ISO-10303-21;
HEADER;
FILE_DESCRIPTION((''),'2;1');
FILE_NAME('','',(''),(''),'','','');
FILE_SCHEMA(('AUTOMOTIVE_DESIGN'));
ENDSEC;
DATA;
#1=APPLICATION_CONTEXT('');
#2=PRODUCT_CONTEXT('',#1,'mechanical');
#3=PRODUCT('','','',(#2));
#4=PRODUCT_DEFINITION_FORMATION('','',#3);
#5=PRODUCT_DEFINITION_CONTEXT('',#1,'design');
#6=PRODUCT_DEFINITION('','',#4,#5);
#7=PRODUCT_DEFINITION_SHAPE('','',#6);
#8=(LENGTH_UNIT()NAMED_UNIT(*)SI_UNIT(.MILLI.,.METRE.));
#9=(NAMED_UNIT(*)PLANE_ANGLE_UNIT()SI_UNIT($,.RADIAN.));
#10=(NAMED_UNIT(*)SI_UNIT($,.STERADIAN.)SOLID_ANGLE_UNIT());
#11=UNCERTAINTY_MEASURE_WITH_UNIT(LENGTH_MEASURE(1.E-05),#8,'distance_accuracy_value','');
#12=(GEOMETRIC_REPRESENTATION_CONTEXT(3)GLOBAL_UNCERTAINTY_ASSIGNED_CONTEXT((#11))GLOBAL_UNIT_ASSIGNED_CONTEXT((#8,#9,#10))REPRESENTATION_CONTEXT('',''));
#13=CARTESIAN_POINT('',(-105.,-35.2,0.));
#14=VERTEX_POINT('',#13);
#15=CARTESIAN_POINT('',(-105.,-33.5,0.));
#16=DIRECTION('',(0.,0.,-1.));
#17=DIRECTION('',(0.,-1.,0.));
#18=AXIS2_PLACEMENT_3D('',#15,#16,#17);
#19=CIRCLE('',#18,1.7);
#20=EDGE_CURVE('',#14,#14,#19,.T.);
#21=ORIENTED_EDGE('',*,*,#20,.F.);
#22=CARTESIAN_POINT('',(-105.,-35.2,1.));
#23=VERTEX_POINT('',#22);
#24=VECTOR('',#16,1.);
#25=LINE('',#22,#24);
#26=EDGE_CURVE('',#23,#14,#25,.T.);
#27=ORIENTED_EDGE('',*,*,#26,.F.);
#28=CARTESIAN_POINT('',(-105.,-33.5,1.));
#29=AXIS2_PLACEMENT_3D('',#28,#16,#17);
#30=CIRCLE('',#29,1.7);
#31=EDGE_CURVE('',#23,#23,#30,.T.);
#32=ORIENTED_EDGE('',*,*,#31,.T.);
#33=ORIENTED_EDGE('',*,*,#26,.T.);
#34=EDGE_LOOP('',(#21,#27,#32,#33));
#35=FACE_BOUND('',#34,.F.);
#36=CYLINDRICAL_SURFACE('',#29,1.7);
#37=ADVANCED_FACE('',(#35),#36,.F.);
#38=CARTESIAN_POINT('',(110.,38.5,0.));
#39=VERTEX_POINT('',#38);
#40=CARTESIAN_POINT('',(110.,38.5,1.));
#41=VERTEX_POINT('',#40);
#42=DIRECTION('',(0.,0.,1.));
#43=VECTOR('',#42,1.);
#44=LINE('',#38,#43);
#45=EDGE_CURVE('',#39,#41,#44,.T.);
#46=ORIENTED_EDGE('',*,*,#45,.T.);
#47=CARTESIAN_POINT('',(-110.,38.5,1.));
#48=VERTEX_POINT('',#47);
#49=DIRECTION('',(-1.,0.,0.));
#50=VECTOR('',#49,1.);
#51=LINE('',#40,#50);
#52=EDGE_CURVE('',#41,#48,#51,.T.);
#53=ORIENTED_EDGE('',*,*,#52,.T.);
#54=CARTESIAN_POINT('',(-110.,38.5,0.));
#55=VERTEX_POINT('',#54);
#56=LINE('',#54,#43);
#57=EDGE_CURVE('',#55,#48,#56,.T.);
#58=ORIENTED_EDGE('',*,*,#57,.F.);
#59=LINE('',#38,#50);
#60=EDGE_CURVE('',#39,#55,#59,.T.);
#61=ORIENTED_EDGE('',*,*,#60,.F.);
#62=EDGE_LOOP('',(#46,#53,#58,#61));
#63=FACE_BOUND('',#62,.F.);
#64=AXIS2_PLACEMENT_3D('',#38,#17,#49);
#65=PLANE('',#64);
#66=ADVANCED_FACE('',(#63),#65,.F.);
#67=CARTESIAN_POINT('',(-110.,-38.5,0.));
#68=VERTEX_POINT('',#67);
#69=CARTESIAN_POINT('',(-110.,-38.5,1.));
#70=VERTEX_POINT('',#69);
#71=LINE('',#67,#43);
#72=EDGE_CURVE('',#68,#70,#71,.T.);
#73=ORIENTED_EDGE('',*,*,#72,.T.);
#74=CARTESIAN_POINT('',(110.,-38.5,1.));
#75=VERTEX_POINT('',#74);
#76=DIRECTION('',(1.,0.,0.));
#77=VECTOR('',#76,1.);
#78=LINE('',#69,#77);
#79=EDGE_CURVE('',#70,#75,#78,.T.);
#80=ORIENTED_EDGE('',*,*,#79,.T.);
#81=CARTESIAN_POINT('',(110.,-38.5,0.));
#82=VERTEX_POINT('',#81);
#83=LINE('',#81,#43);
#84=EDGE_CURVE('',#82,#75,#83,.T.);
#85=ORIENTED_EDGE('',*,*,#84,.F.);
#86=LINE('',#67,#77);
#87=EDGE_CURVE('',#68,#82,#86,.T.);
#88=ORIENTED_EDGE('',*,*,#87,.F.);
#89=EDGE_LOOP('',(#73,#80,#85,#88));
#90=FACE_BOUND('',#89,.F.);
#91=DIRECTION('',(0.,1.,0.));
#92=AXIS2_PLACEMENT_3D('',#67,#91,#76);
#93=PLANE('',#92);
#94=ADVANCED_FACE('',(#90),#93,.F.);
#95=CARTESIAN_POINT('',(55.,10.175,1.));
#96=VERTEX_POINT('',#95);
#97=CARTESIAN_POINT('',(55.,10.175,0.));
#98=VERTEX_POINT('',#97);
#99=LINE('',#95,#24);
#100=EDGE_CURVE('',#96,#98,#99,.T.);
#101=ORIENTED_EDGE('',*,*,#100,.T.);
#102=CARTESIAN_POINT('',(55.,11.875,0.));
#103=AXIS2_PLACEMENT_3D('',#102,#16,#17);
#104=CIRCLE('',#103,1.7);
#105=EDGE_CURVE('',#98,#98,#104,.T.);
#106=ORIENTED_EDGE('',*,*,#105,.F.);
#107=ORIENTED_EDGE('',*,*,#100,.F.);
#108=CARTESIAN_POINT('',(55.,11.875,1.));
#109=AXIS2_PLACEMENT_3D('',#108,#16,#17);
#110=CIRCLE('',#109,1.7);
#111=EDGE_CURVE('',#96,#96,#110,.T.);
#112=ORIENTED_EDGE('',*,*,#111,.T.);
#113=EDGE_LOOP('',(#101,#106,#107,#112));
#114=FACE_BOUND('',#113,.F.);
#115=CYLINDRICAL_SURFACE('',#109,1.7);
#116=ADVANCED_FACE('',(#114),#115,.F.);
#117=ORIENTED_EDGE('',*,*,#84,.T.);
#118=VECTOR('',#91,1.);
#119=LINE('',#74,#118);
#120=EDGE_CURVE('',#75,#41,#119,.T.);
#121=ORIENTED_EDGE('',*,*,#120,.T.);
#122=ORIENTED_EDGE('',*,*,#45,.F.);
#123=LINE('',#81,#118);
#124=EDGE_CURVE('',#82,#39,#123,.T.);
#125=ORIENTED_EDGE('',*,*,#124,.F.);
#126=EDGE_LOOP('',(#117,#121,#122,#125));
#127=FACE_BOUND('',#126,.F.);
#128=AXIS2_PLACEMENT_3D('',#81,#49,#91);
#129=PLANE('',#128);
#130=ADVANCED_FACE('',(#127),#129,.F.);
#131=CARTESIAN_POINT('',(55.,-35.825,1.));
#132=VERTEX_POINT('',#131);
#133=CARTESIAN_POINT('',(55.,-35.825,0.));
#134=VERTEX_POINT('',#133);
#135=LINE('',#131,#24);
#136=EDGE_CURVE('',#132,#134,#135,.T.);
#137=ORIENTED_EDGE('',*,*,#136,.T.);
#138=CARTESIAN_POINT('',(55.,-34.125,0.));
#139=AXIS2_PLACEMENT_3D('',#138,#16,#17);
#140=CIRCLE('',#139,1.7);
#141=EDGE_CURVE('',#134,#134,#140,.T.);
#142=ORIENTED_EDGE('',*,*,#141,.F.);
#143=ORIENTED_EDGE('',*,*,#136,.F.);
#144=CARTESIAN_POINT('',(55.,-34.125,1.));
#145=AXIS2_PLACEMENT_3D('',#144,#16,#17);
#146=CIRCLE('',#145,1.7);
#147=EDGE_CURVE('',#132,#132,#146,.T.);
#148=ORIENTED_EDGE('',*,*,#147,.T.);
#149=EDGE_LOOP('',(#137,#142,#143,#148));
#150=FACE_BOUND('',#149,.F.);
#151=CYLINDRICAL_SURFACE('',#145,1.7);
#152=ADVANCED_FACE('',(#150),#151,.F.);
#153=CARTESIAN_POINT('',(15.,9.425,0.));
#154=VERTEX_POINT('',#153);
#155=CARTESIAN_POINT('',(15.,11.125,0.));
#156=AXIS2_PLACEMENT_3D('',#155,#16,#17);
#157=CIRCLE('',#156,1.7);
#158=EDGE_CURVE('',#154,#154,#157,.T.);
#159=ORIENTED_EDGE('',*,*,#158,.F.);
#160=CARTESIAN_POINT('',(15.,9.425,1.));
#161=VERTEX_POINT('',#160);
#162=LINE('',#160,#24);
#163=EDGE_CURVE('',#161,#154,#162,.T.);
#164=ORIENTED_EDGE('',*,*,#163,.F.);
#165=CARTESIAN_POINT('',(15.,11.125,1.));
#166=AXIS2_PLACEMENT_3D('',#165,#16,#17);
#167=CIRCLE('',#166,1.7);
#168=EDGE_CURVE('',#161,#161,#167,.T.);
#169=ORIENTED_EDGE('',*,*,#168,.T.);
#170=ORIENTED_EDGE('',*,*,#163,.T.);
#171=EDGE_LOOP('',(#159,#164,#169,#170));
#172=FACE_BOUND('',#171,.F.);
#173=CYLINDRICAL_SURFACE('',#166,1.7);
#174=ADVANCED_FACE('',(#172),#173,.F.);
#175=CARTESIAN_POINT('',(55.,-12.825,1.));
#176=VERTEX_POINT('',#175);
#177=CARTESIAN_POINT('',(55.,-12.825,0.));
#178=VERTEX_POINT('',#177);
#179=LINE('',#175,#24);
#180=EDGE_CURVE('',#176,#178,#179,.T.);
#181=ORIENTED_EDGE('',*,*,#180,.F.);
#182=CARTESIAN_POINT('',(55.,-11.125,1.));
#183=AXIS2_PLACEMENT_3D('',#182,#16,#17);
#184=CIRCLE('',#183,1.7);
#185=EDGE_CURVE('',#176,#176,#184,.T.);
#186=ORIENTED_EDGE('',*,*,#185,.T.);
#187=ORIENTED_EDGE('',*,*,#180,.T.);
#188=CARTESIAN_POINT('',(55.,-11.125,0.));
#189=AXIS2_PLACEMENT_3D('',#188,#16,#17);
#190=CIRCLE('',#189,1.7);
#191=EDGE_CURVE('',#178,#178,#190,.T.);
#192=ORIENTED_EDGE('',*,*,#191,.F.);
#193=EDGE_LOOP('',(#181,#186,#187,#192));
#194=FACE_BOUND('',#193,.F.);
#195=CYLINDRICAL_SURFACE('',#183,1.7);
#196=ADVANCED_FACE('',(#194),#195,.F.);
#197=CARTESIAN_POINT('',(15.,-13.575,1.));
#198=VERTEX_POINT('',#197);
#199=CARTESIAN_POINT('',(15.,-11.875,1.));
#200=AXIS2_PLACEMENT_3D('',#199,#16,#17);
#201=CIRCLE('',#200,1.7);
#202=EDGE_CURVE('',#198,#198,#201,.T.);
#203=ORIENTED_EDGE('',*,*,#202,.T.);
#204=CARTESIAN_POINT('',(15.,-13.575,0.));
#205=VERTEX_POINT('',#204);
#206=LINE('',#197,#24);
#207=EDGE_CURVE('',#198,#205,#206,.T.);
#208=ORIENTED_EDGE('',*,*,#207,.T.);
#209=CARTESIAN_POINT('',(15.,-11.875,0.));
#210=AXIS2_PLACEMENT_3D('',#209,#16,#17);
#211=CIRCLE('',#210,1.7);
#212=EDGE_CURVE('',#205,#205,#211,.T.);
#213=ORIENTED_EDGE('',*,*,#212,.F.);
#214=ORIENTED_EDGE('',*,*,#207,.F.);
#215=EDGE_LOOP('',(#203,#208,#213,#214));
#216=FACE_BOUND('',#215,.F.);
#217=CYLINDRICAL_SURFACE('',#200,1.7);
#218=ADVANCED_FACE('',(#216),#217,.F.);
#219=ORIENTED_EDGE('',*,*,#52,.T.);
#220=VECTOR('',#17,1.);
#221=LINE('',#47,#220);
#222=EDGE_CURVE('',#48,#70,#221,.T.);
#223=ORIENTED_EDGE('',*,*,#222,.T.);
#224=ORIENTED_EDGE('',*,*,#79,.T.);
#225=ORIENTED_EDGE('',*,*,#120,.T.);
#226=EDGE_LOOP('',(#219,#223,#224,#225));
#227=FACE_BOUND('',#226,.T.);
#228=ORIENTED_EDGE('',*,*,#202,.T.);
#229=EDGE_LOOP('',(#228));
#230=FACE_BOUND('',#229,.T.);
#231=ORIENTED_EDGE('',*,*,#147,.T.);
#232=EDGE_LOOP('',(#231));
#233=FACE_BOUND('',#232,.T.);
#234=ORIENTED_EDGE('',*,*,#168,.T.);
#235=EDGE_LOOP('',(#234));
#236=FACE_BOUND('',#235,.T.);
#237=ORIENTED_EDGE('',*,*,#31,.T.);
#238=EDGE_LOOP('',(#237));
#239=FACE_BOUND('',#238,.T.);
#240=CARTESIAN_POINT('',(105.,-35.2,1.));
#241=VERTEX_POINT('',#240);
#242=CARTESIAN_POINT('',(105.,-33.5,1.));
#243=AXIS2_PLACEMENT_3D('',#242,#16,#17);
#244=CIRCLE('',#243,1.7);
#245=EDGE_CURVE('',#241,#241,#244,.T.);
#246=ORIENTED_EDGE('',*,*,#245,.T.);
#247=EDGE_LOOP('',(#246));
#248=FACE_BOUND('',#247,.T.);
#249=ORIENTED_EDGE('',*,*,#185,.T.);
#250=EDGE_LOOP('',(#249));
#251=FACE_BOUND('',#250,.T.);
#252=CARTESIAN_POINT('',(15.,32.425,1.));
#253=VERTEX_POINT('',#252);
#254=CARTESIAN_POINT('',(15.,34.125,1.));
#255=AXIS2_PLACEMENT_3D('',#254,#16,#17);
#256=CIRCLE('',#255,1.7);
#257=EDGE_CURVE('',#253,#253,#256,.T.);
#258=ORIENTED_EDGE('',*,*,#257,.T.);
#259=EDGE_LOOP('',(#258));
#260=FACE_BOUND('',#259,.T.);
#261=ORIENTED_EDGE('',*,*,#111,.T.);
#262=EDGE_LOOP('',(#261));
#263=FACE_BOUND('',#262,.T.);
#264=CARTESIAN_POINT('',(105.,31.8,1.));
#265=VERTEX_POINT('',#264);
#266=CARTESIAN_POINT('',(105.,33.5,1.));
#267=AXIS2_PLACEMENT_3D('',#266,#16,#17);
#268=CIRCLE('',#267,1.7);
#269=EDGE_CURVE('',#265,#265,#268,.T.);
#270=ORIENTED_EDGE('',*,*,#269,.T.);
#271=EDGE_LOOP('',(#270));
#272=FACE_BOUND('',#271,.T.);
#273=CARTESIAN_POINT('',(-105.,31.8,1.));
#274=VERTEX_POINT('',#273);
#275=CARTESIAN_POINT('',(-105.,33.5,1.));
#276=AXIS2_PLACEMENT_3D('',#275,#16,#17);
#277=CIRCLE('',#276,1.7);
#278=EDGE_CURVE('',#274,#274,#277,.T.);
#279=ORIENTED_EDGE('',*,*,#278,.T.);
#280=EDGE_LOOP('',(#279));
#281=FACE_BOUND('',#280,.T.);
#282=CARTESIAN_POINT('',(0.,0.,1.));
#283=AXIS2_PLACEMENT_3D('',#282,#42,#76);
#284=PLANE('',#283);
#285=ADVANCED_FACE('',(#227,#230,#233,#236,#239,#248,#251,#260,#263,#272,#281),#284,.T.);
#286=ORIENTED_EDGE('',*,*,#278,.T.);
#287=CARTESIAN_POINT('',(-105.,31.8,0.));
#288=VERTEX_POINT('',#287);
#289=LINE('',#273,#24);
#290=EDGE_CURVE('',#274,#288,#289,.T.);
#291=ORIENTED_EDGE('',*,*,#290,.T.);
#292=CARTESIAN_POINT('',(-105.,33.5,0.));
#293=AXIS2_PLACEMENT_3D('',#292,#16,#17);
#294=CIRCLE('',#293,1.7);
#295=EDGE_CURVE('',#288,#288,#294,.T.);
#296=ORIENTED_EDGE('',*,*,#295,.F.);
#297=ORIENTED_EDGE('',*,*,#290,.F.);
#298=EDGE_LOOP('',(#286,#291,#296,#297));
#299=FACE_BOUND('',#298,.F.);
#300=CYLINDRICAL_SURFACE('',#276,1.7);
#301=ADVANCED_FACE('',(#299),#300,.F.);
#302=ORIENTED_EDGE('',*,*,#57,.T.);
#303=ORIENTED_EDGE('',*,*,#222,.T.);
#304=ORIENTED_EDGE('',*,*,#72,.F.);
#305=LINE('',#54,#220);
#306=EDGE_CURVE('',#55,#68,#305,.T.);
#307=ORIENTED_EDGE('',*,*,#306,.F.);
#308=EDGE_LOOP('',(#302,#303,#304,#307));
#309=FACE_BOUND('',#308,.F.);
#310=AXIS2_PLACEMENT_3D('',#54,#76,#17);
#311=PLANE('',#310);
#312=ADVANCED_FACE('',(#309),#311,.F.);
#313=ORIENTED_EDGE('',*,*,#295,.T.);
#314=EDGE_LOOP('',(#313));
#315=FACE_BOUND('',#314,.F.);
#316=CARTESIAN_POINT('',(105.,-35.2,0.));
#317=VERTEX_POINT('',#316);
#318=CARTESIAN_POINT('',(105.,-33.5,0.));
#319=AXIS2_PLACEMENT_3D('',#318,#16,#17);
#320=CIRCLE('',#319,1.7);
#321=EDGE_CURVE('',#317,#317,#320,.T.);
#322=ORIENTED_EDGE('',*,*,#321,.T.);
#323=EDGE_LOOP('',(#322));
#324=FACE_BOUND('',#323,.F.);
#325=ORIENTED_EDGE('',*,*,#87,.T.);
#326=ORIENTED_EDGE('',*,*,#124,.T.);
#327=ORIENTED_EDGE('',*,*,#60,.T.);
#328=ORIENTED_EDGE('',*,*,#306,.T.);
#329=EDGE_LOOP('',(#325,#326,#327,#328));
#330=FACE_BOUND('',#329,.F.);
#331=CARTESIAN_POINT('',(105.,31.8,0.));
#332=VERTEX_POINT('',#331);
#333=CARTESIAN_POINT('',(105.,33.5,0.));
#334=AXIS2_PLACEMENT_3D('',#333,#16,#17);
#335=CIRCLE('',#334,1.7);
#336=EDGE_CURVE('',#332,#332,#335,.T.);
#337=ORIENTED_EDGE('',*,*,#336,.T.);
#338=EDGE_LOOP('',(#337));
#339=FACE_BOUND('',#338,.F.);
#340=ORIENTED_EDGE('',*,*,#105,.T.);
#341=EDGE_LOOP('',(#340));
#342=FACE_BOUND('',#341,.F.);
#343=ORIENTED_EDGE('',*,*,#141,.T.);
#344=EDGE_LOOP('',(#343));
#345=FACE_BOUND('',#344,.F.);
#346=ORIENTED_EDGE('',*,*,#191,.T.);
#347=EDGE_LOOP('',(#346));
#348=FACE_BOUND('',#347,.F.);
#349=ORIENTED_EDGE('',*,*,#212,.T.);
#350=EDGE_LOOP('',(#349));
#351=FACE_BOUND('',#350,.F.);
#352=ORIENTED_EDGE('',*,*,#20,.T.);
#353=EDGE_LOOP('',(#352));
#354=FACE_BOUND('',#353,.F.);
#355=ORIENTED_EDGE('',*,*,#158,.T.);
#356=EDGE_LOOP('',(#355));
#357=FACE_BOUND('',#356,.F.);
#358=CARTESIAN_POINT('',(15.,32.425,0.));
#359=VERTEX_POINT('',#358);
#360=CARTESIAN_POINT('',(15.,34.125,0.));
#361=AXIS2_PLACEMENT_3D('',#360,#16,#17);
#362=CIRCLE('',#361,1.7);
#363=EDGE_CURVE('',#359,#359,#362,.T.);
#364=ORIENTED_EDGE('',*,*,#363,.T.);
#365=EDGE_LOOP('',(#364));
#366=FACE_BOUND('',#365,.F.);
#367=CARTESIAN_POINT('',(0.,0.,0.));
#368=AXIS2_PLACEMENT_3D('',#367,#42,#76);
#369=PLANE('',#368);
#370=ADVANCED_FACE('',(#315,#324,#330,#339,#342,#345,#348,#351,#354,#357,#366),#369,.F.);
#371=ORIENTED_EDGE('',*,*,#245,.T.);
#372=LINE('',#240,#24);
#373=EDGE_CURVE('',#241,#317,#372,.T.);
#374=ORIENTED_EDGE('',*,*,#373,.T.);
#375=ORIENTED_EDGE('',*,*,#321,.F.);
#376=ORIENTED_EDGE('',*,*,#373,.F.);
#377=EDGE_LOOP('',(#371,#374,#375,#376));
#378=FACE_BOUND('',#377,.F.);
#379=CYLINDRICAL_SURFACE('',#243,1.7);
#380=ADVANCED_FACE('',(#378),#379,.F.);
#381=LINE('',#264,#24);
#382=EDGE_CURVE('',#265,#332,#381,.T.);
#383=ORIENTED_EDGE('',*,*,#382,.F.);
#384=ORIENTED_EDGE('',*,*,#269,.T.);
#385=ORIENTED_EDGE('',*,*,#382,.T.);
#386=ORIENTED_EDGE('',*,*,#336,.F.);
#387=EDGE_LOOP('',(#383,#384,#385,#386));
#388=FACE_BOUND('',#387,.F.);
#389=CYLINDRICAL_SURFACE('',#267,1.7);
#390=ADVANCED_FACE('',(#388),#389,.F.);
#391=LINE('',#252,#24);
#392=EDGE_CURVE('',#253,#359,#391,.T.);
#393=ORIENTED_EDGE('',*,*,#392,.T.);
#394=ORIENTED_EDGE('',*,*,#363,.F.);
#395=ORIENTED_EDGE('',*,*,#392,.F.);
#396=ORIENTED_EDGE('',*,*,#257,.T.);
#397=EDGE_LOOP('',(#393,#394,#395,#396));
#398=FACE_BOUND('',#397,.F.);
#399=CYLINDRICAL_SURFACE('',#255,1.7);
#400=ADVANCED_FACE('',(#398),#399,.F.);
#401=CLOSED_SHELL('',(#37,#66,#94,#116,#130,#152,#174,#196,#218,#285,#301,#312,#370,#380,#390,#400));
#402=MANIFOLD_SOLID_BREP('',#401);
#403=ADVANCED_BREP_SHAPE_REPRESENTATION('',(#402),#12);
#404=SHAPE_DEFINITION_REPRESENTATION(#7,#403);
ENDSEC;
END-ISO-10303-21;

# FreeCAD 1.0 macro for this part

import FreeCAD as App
import Part
import Sketcher
Q = App.Units.Quantity


def add_polygon(sketch, points):
    """Adds a closed chain of lines whose ends are joined by coincident constraints."""
    first, n = sketch.GeometryCount, len(points)
    for a, b in zip(points, points[1:] + points[:1]):
        sketch.addGeometry(Part.LineSegment(App.Vector(*a, 0), App.Vector(*b, 0)), False)
    for i in range(n):
        sketch.addConstraint(Sketcher.Constraint("Coincident", first + i, 2, first + (i + 1) % n, 1))

doc = App.newDocument("Part")
body = doc.addObject("PartDesign::Body", "Body")

# Sketch on XY plane
sketch1 = doc.addObject("Sketcher::SketchObject", "Sketch")
body.addObject(sketch1)
sketch1.AttachmentSupport = (doc.XY_Plane, [""])
sketch1.MapMode = "FlatFace"
add_polygon(sketch1, [(-110, 38.5), (-110, -38.5), (110, -38.5), (110, 38.5)])  # lines 0-3
sketch1.addConstraint([
    Sketcher.Constraint("Vertical", 0),
    Sketcher.Constraint("Horizontal", 1),
    Sketcher.Constraint("Vertical", 2),
    Sketcher.Constraint("Horizontal", 3),
    Sketcher.Constraint("Symmetric", 0, 2, 2, 2, -1, 1),
    Sketcher.Constraint("DistanceX", 1, 1, 1, 2, Q("220 mm")),
    Sketcher.Constraint("DistanceY", 0, 2, 0, 1, Q("77 mm")),
])
pad1 = doc.addObject("PartDesign::Pad", "Pad")
body.addObject(pad1)
pad1.Profile = sketch1
pad1.Length = 1

# Sketch on XY plane
sketch2 = doc.addObject("Sketcher::SketchObject", "Sketch001")
body.addObject(sketch2)
sketch2.AttachmentSupport = (doc.XY_Plane, [""])
sketch2.MapMode = "FlatFace"
sketch2.AttachmentOffset = App.Placement(App.Vector(0, 0, 1), App.Rotation())
sketch2.addGeometry([
    Part.Circle(App.Vector(-105, 33.5, 0), App.Vector(0, 0, 1), 1.7),
    Part.Circle(App.Vector(-105, -33.5, 0), App.Vector(0, 0, 1), 1.7),
    Part.Circle(App.Vector(105, -33.5, 0), App.Vector(0, 0, 1), 1.7),
    Part.Circle(App.Vector(105, 33.5, 0), App.Vector(0, 0, 1), 1.7),
], False)
sketch2.addConstraint([
    Sketcher.Constraint("Equal", 0, 1),
    Sketcher.Constraint("Equal", 1, 2),
    Sketcher.Constraint("Equal", 2, 3),
    Sketcher.Constraint("Symmetric", 0, 3, 2, 3, -1, 1),
    Sketcher.Constraint("Symmetric", 1, 3, 3, 3, -1, 1),
    Sketcher.Constraint("Symmetric", 1, 3, 2, 3, -2),
    Sketcher.Constraint("Diameter", 0, Q("3.4 mm")),
    Sketcher.Constraint("DistanceX", 0, 3, -1, 1, Q("105 mm")),
    Sketcher.Constraint("DistanceY", 1, 3, 0, 3, Q("67 mm")),
])
doc.recompute()
hole = doc.addObject("PartDesign::Hole", "Hole")
body.addObject(hole)
hole.Profile = sketch2
hole.ThreadType = "None"
hole.Diameter = 3.4
hole.DepthType = "Dimension"
hole.Depth = 1
hole.DrillPoint = "Flat"

# Sketch on XY plane
sketch3 = doc.addObject("Sketcher::SketchObject", "Sketch002")
body.addObject(sketch3)
sketch3.AttachmentSupport = (doc.XY_Plane, [""])
sketch3.MapMode = "FlatFace"
sketch3.AttachmentOffset = App.Placement(App.Vector(0, 0, 1), App.Rotation())
sketch3.addGeometry([
    Part.Circle(App.Vector(15, 34.125, 0), App.Vector(0, 0, 1), 1.7),  # 0
    Part.Circle(App.Vector(55, 11.875, 0), App.Vector(0, 0, 1), 1.7),  # 1
    Part.Circle(App.Vector(15, 11.125, 0), App.Vector(0, 0, 1), 1.7),  # 2
    Part.Circle(App.Vector(55, -11.125, 0), App.Vector(0, 0, 1), 1.7),  # 3
    Part.Circle(App.Vector(15, -11.875, 0), App.Vector(0, 0, 1), 1.7),  # 4
    Part.Circle(App.Vector(55, -34.125, 0), App.Vector(0, 0, 1), 1.7),  # 5
], False)
sketch3.addConstraint([
    Sketcher.Constraint("Equal", 0, 1),
    Sketcher.Constraint("Equal", 1, 2),
    Sketcher.Constraint("Equal", 2, 3),
    Sketcher.Constraint("Equal", 3, 4),
    Sketcher.Constraint("Equal", 4, 5),
    Sketcher.Constraint("Vertical", 0, 3, 2, 3),
    Sketcher.Constraint("Vertical", 1, 3, 3, 3),
    Sketcher.Constraint("Vertical", 2, 3, 4, 3),
    Sketcher.Constraint("Vertical", 3, 3, 5, 3),
    Sketcher.Constraint("Diameter", 0, Q("3.4 mm")),
    Sketcher.Constraint("DistanceX", -1, 1, 0, 3, Q("15 mm")),
    Sketcher.Constraint("DistanceX", -1, 1, 1, 3, Q("55 mm")),
    Sketcher.Constraint("DistanceY", 2, 3, 0, 3, Q("23 mm")),
    Sketcher.Constraint("DistanceY", 3, 3, 1, 3, Q("23 mm")),
    Sketcher.Constraint("DistanceY", 4, 3, 2, 3, Q("23 mm")),
    Sketcher.Constraint("DistanceY", 5, 3, 3, 3, Q("23 mm")),
    Sketcher.Constraint("DistanceY", 1, 3, 0, 3, Q("22.25 mm")),
    Sketcher.Constraint("DistanceY", -1, 1, 0, 3, Q("34.125 mm")),
])
doc.recompute()
hole2 = doc.addObject("PartDesign::Hole", "Hole001")
body.addObject(hole2)
hole2.Profile = sketch3
hole2.ThreadType = "None"
hole2.Diameter = 3.4
hole2.DepthType = "ThroughAll"

doc.recompute()
